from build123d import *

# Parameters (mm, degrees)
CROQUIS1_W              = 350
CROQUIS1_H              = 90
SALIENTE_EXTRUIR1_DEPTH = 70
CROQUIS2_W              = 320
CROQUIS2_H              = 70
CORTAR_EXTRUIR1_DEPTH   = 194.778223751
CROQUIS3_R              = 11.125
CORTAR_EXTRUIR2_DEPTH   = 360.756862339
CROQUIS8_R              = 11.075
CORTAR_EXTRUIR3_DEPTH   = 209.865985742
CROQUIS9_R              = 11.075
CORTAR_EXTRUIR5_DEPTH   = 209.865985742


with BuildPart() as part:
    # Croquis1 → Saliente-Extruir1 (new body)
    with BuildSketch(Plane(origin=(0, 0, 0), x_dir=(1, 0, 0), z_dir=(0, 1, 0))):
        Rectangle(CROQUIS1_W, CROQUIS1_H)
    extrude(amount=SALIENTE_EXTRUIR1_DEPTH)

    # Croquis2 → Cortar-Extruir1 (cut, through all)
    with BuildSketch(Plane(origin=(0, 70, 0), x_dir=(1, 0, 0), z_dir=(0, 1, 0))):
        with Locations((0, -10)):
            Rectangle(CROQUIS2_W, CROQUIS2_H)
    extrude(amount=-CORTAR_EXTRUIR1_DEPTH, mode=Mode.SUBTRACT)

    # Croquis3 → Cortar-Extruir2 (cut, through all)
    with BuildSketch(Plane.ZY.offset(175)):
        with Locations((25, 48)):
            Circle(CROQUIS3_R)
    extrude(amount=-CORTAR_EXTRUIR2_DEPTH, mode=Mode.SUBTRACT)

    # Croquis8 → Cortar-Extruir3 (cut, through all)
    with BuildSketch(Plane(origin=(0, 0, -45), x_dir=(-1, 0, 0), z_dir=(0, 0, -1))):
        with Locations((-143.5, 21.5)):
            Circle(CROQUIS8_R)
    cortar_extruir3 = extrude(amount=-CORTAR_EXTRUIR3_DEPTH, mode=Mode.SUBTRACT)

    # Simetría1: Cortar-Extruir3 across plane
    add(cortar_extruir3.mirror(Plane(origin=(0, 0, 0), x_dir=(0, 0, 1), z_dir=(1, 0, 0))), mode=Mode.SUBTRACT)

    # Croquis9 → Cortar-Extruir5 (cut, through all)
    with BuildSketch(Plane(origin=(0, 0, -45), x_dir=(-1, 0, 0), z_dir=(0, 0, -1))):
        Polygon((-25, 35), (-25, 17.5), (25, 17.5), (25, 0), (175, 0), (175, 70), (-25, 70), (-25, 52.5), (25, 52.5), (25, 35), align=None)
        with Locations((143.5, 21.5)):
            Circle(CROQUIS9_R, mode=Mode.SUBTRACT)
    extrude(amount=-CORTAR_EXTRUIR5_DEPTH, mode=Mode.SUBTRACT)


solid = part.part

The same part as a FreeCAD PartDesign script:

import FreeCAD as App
import Part
import Sketcher
from FreeCAD import Vector


def add_polygon(sketch, points):
    """Adds a closed chain of lines whose ends are joined by coincident constraints."""
    first, n = sketch.GeometryCount, len(points)
    for a, b in zip(points, points[1:] + points[:1]):
        sketch.addGeometry(Part.LineSegment(App.Vector(*a, 0), App.Vector(*b, 0)), False)
    for i in range(n):
        sketch.addConstraint(Sketcher.Constraint("Coincident", first + i, 2, first + (i + 1) % n, 1))

doc = App.newDocument("Part")
body = doc.addObject("PartDesign::Body", "Body")

# Sketch on XZ plane
sketch1 = body.newObject("Sketcher::SketchObject", "Sketch")
sketch1.AttachmentSupport = (doc.getObject("XZ_Plane"), [""])
sketch1.MapMode = "FlatFace"
add_polygon(sketch1, [(-175, -45), (-175, 45), (175, 45), (175, -45)])  # lines 0-3
sketch1.addConstraint([
    Sketcher.Constraint("Vertical", 0),
    Sketcher.Constraint("Horizontal", 1),
    Sketcher.Constraint("Vertical", 2),
    Sketcher.Constraint("Horizontal", 3),
    Sketcher.Constraint("Symmetric", 0, 2, 2, 2, -1, 1),
    Sketcher.Constraint("DistanceX", 1, 1, 1, 2, 350.0),
    Sketcher.Constraint("DistanceY", 0, 1, 0, 2, 90.0),
])
pad1 = body.newObject("PartDesign::Pad", "Pad")
pad1.Profile = sketch1
pad1.Length = 70
pad1.Reversed = True

# Sketch on XZ plane
sketch2 = body.newObject("Sketcher::SketchObject", "Sketch001")
sketch2.AttachmentSupport = (doc.getObject("XZ_Plane"), [""])
sketch2.MapMode = "FlatFace"
sketch2.AttachmentOffset = App.Placement(Vector(0, 0, -70), App.Rotation())
add_polygon(sketch2, [(-160, -25), (-160, 45), (160, 45), (160, -25)])  # lines 0-3
sketch2.addConstraint([
    Sketcher.Constraint("Vertical", 0),
    Sketcher.Constraint("Horizontal", 1),
    Sketcher.Constraint("Vertical", 2),
    Sketcher.Constraint("Horizontal", 3),
    Sketcher.Constraint("DistanceX", 1, 1, 1, 2, 320.0),
    Sketcher.Constraint("DistanceY", 0, 1, 0, 2, 70.0),
    Sketcher.Constraint("DistanceX", 0, 2, -1, 1, 160.0),
    Sketcher.Constraint("DistanceY", -1, 1, 0, 2, 45.0),
])
pocket1 = body.newObject("PartDesign::Pocket", "Pocket")
pocket1.Profile = sketch2
pocket1.Type = "ThroughAll"
pocket1.Reversed = True

# Sketch on YZ plane
sketch3 = body.newObject("Sketcher::SketchObject", "Sketch002")
sketch3.AttachmentSupport = (doc.getObject("YZ_Plane"), [""])
sketch3.MapMode = "FlatFace"
sketch3.AttachmentOffset = App.Placement(Vector(0, 0, -175), App.Rotation())
sketch3.addGeometry(Part.Circle(Vector(48, 25, 0), Vector(0, 0, 1), 11), False)
sketch3.addConstraint([
    Sketcher.Constraint("Diameter", 0, 22.25),
    Sketcher.Constraint("DistanceX", -1, 1, 0, 3, 48.0),
    Sketcher.Constraint("DistanceY", -1, 1, 0, 3, 25.0),
])
pocket2 = body.newObject("PartDesign::Pocket", "Pocket001")
pocket2.Profile = sketch3
pocket2.Type = "ThroughAll"
pocket2.Reversed = True

# Sketch on XY plane
sketch4 = body.newObject("Sketcher::SketchObject", "Sketch003")
sketch4.AttachmentSupport = (doc.getObject("XY_Plane"), [""])
sketch4.MapMode = "FlatFace"
sketch4.AttachmentOffset = App.Placement(Vector(0, 0, -45), App.Rotation())
sketch4.addGeometry(Part.Circle(Vector(144, 22, 0), Vector(0, 0, 1), 11), False)
sketch4.addConstraint([
    Sketcher.Constraint("Diameter", 0, 22.15),
    Sketcher.Constraint("DistanceX", -1, 1, 0, 3, 143.5),
    Sketcher.Constraint("DistanceY", -1, 1, 0, 3, 21.5),
])
pocket3 = body.newObject("PartDesign::Pocket", "Pocket002")
pocket3.Profile = sketch4
pocket3.Type = "ThroughAll"
pocket3.Reversed = True
doc.recompute()

mirrored = body.newObject("PartDesign::Mirrored", "Mirrored")
mirrored.Originals = [pocket3]
mirrored.MirrorPlane = (doc.getObject("YZ_Plane"), [""])
body.Tip = mirrored

# Sketch on XY plane
sketch5 = body.newObject("Sketcher::SketchObject", "Sketch004")
sketch5.AttachmentSupport = (doc.getObject("XY_Plane"), [""])
sketch5.MapMode = "FlatFace"
sketch5.AttachmentOffset = App.Placement(Vector(0, 0, -45), App.Rotation())
add_polygon(sketch5, [(25, 35), (25, 18), (-25, 18), (-25, 0), (-175, 0), (-175, 70), (25, 70), (25, 52), (-25, 52), (-25, 35)])  # lines 0-9
sketch5.addGeometry(Part.Circle(Vector(-144, 22, 0), Vector(0, 0, 1), 11), False)  # 10
sketch5.addConstraint([
    Sketcher.Constraint("Vertical", 0),
    Sketcher.Constraint("Horizontal", 1),
    Sketcher.Constraint("Vertical", 2),
    Sketcher.Constraint("Horizontal", 3),
    Sketcher.Constraint("Vertical", 4),
    Sketcher.Constraint("Horizontal", 5),
    Sketcher.Constraint("Vertical", 6),
    Sketcher.Constraint("Horizontal", 7),
    Sketcher.Constraint("Vertical", 8),
    Sketcher.Constraint("Horizontal", 9),
    Sketcher.Constraint("PointOnObject", 2, 2, -1),
    Sketcher.Constraint("Vertical", 0, 2, 5, 2),
    Sketcher.Constraint("Vertical", 2, 2, 7, 2),
    Sketcher.Constraint("Equal", 0, 2),
    Sketcher.Constraint("Equal", 2, 6),
    Sketcher.Constraint("Equal", 6, 8),
    Sketcher.Constraint("Diameter", 10, 22.15),
    Sketcher.Constraint("DistanceX", 1, 2, 1, 1, 50.0),
    Sketcher.Constraint("DistanceX", 3, 2, 3, 1, 150.0),
    Sketcher.Constraint("DistanceY", 4, 1, 4, 2, 70.0),
    Sketcher.Constraint("DistanceX", -1, 1, 0, 2, 25.0),
    Sketcher.Constraint("DistanceY", 0, 2, 10, 3, 4.0),
    Sketcher.Constraint("DistanceX", 10, 3, -1, 1, 143.5),
])
pocket4 = body.newObject("PartDesign::Pocket", "Pocket003")
pocket4.Profile = sketch5
pocket4.Type = "ThroughAll"
pocket4.Reversed = True

doc.recompute()
